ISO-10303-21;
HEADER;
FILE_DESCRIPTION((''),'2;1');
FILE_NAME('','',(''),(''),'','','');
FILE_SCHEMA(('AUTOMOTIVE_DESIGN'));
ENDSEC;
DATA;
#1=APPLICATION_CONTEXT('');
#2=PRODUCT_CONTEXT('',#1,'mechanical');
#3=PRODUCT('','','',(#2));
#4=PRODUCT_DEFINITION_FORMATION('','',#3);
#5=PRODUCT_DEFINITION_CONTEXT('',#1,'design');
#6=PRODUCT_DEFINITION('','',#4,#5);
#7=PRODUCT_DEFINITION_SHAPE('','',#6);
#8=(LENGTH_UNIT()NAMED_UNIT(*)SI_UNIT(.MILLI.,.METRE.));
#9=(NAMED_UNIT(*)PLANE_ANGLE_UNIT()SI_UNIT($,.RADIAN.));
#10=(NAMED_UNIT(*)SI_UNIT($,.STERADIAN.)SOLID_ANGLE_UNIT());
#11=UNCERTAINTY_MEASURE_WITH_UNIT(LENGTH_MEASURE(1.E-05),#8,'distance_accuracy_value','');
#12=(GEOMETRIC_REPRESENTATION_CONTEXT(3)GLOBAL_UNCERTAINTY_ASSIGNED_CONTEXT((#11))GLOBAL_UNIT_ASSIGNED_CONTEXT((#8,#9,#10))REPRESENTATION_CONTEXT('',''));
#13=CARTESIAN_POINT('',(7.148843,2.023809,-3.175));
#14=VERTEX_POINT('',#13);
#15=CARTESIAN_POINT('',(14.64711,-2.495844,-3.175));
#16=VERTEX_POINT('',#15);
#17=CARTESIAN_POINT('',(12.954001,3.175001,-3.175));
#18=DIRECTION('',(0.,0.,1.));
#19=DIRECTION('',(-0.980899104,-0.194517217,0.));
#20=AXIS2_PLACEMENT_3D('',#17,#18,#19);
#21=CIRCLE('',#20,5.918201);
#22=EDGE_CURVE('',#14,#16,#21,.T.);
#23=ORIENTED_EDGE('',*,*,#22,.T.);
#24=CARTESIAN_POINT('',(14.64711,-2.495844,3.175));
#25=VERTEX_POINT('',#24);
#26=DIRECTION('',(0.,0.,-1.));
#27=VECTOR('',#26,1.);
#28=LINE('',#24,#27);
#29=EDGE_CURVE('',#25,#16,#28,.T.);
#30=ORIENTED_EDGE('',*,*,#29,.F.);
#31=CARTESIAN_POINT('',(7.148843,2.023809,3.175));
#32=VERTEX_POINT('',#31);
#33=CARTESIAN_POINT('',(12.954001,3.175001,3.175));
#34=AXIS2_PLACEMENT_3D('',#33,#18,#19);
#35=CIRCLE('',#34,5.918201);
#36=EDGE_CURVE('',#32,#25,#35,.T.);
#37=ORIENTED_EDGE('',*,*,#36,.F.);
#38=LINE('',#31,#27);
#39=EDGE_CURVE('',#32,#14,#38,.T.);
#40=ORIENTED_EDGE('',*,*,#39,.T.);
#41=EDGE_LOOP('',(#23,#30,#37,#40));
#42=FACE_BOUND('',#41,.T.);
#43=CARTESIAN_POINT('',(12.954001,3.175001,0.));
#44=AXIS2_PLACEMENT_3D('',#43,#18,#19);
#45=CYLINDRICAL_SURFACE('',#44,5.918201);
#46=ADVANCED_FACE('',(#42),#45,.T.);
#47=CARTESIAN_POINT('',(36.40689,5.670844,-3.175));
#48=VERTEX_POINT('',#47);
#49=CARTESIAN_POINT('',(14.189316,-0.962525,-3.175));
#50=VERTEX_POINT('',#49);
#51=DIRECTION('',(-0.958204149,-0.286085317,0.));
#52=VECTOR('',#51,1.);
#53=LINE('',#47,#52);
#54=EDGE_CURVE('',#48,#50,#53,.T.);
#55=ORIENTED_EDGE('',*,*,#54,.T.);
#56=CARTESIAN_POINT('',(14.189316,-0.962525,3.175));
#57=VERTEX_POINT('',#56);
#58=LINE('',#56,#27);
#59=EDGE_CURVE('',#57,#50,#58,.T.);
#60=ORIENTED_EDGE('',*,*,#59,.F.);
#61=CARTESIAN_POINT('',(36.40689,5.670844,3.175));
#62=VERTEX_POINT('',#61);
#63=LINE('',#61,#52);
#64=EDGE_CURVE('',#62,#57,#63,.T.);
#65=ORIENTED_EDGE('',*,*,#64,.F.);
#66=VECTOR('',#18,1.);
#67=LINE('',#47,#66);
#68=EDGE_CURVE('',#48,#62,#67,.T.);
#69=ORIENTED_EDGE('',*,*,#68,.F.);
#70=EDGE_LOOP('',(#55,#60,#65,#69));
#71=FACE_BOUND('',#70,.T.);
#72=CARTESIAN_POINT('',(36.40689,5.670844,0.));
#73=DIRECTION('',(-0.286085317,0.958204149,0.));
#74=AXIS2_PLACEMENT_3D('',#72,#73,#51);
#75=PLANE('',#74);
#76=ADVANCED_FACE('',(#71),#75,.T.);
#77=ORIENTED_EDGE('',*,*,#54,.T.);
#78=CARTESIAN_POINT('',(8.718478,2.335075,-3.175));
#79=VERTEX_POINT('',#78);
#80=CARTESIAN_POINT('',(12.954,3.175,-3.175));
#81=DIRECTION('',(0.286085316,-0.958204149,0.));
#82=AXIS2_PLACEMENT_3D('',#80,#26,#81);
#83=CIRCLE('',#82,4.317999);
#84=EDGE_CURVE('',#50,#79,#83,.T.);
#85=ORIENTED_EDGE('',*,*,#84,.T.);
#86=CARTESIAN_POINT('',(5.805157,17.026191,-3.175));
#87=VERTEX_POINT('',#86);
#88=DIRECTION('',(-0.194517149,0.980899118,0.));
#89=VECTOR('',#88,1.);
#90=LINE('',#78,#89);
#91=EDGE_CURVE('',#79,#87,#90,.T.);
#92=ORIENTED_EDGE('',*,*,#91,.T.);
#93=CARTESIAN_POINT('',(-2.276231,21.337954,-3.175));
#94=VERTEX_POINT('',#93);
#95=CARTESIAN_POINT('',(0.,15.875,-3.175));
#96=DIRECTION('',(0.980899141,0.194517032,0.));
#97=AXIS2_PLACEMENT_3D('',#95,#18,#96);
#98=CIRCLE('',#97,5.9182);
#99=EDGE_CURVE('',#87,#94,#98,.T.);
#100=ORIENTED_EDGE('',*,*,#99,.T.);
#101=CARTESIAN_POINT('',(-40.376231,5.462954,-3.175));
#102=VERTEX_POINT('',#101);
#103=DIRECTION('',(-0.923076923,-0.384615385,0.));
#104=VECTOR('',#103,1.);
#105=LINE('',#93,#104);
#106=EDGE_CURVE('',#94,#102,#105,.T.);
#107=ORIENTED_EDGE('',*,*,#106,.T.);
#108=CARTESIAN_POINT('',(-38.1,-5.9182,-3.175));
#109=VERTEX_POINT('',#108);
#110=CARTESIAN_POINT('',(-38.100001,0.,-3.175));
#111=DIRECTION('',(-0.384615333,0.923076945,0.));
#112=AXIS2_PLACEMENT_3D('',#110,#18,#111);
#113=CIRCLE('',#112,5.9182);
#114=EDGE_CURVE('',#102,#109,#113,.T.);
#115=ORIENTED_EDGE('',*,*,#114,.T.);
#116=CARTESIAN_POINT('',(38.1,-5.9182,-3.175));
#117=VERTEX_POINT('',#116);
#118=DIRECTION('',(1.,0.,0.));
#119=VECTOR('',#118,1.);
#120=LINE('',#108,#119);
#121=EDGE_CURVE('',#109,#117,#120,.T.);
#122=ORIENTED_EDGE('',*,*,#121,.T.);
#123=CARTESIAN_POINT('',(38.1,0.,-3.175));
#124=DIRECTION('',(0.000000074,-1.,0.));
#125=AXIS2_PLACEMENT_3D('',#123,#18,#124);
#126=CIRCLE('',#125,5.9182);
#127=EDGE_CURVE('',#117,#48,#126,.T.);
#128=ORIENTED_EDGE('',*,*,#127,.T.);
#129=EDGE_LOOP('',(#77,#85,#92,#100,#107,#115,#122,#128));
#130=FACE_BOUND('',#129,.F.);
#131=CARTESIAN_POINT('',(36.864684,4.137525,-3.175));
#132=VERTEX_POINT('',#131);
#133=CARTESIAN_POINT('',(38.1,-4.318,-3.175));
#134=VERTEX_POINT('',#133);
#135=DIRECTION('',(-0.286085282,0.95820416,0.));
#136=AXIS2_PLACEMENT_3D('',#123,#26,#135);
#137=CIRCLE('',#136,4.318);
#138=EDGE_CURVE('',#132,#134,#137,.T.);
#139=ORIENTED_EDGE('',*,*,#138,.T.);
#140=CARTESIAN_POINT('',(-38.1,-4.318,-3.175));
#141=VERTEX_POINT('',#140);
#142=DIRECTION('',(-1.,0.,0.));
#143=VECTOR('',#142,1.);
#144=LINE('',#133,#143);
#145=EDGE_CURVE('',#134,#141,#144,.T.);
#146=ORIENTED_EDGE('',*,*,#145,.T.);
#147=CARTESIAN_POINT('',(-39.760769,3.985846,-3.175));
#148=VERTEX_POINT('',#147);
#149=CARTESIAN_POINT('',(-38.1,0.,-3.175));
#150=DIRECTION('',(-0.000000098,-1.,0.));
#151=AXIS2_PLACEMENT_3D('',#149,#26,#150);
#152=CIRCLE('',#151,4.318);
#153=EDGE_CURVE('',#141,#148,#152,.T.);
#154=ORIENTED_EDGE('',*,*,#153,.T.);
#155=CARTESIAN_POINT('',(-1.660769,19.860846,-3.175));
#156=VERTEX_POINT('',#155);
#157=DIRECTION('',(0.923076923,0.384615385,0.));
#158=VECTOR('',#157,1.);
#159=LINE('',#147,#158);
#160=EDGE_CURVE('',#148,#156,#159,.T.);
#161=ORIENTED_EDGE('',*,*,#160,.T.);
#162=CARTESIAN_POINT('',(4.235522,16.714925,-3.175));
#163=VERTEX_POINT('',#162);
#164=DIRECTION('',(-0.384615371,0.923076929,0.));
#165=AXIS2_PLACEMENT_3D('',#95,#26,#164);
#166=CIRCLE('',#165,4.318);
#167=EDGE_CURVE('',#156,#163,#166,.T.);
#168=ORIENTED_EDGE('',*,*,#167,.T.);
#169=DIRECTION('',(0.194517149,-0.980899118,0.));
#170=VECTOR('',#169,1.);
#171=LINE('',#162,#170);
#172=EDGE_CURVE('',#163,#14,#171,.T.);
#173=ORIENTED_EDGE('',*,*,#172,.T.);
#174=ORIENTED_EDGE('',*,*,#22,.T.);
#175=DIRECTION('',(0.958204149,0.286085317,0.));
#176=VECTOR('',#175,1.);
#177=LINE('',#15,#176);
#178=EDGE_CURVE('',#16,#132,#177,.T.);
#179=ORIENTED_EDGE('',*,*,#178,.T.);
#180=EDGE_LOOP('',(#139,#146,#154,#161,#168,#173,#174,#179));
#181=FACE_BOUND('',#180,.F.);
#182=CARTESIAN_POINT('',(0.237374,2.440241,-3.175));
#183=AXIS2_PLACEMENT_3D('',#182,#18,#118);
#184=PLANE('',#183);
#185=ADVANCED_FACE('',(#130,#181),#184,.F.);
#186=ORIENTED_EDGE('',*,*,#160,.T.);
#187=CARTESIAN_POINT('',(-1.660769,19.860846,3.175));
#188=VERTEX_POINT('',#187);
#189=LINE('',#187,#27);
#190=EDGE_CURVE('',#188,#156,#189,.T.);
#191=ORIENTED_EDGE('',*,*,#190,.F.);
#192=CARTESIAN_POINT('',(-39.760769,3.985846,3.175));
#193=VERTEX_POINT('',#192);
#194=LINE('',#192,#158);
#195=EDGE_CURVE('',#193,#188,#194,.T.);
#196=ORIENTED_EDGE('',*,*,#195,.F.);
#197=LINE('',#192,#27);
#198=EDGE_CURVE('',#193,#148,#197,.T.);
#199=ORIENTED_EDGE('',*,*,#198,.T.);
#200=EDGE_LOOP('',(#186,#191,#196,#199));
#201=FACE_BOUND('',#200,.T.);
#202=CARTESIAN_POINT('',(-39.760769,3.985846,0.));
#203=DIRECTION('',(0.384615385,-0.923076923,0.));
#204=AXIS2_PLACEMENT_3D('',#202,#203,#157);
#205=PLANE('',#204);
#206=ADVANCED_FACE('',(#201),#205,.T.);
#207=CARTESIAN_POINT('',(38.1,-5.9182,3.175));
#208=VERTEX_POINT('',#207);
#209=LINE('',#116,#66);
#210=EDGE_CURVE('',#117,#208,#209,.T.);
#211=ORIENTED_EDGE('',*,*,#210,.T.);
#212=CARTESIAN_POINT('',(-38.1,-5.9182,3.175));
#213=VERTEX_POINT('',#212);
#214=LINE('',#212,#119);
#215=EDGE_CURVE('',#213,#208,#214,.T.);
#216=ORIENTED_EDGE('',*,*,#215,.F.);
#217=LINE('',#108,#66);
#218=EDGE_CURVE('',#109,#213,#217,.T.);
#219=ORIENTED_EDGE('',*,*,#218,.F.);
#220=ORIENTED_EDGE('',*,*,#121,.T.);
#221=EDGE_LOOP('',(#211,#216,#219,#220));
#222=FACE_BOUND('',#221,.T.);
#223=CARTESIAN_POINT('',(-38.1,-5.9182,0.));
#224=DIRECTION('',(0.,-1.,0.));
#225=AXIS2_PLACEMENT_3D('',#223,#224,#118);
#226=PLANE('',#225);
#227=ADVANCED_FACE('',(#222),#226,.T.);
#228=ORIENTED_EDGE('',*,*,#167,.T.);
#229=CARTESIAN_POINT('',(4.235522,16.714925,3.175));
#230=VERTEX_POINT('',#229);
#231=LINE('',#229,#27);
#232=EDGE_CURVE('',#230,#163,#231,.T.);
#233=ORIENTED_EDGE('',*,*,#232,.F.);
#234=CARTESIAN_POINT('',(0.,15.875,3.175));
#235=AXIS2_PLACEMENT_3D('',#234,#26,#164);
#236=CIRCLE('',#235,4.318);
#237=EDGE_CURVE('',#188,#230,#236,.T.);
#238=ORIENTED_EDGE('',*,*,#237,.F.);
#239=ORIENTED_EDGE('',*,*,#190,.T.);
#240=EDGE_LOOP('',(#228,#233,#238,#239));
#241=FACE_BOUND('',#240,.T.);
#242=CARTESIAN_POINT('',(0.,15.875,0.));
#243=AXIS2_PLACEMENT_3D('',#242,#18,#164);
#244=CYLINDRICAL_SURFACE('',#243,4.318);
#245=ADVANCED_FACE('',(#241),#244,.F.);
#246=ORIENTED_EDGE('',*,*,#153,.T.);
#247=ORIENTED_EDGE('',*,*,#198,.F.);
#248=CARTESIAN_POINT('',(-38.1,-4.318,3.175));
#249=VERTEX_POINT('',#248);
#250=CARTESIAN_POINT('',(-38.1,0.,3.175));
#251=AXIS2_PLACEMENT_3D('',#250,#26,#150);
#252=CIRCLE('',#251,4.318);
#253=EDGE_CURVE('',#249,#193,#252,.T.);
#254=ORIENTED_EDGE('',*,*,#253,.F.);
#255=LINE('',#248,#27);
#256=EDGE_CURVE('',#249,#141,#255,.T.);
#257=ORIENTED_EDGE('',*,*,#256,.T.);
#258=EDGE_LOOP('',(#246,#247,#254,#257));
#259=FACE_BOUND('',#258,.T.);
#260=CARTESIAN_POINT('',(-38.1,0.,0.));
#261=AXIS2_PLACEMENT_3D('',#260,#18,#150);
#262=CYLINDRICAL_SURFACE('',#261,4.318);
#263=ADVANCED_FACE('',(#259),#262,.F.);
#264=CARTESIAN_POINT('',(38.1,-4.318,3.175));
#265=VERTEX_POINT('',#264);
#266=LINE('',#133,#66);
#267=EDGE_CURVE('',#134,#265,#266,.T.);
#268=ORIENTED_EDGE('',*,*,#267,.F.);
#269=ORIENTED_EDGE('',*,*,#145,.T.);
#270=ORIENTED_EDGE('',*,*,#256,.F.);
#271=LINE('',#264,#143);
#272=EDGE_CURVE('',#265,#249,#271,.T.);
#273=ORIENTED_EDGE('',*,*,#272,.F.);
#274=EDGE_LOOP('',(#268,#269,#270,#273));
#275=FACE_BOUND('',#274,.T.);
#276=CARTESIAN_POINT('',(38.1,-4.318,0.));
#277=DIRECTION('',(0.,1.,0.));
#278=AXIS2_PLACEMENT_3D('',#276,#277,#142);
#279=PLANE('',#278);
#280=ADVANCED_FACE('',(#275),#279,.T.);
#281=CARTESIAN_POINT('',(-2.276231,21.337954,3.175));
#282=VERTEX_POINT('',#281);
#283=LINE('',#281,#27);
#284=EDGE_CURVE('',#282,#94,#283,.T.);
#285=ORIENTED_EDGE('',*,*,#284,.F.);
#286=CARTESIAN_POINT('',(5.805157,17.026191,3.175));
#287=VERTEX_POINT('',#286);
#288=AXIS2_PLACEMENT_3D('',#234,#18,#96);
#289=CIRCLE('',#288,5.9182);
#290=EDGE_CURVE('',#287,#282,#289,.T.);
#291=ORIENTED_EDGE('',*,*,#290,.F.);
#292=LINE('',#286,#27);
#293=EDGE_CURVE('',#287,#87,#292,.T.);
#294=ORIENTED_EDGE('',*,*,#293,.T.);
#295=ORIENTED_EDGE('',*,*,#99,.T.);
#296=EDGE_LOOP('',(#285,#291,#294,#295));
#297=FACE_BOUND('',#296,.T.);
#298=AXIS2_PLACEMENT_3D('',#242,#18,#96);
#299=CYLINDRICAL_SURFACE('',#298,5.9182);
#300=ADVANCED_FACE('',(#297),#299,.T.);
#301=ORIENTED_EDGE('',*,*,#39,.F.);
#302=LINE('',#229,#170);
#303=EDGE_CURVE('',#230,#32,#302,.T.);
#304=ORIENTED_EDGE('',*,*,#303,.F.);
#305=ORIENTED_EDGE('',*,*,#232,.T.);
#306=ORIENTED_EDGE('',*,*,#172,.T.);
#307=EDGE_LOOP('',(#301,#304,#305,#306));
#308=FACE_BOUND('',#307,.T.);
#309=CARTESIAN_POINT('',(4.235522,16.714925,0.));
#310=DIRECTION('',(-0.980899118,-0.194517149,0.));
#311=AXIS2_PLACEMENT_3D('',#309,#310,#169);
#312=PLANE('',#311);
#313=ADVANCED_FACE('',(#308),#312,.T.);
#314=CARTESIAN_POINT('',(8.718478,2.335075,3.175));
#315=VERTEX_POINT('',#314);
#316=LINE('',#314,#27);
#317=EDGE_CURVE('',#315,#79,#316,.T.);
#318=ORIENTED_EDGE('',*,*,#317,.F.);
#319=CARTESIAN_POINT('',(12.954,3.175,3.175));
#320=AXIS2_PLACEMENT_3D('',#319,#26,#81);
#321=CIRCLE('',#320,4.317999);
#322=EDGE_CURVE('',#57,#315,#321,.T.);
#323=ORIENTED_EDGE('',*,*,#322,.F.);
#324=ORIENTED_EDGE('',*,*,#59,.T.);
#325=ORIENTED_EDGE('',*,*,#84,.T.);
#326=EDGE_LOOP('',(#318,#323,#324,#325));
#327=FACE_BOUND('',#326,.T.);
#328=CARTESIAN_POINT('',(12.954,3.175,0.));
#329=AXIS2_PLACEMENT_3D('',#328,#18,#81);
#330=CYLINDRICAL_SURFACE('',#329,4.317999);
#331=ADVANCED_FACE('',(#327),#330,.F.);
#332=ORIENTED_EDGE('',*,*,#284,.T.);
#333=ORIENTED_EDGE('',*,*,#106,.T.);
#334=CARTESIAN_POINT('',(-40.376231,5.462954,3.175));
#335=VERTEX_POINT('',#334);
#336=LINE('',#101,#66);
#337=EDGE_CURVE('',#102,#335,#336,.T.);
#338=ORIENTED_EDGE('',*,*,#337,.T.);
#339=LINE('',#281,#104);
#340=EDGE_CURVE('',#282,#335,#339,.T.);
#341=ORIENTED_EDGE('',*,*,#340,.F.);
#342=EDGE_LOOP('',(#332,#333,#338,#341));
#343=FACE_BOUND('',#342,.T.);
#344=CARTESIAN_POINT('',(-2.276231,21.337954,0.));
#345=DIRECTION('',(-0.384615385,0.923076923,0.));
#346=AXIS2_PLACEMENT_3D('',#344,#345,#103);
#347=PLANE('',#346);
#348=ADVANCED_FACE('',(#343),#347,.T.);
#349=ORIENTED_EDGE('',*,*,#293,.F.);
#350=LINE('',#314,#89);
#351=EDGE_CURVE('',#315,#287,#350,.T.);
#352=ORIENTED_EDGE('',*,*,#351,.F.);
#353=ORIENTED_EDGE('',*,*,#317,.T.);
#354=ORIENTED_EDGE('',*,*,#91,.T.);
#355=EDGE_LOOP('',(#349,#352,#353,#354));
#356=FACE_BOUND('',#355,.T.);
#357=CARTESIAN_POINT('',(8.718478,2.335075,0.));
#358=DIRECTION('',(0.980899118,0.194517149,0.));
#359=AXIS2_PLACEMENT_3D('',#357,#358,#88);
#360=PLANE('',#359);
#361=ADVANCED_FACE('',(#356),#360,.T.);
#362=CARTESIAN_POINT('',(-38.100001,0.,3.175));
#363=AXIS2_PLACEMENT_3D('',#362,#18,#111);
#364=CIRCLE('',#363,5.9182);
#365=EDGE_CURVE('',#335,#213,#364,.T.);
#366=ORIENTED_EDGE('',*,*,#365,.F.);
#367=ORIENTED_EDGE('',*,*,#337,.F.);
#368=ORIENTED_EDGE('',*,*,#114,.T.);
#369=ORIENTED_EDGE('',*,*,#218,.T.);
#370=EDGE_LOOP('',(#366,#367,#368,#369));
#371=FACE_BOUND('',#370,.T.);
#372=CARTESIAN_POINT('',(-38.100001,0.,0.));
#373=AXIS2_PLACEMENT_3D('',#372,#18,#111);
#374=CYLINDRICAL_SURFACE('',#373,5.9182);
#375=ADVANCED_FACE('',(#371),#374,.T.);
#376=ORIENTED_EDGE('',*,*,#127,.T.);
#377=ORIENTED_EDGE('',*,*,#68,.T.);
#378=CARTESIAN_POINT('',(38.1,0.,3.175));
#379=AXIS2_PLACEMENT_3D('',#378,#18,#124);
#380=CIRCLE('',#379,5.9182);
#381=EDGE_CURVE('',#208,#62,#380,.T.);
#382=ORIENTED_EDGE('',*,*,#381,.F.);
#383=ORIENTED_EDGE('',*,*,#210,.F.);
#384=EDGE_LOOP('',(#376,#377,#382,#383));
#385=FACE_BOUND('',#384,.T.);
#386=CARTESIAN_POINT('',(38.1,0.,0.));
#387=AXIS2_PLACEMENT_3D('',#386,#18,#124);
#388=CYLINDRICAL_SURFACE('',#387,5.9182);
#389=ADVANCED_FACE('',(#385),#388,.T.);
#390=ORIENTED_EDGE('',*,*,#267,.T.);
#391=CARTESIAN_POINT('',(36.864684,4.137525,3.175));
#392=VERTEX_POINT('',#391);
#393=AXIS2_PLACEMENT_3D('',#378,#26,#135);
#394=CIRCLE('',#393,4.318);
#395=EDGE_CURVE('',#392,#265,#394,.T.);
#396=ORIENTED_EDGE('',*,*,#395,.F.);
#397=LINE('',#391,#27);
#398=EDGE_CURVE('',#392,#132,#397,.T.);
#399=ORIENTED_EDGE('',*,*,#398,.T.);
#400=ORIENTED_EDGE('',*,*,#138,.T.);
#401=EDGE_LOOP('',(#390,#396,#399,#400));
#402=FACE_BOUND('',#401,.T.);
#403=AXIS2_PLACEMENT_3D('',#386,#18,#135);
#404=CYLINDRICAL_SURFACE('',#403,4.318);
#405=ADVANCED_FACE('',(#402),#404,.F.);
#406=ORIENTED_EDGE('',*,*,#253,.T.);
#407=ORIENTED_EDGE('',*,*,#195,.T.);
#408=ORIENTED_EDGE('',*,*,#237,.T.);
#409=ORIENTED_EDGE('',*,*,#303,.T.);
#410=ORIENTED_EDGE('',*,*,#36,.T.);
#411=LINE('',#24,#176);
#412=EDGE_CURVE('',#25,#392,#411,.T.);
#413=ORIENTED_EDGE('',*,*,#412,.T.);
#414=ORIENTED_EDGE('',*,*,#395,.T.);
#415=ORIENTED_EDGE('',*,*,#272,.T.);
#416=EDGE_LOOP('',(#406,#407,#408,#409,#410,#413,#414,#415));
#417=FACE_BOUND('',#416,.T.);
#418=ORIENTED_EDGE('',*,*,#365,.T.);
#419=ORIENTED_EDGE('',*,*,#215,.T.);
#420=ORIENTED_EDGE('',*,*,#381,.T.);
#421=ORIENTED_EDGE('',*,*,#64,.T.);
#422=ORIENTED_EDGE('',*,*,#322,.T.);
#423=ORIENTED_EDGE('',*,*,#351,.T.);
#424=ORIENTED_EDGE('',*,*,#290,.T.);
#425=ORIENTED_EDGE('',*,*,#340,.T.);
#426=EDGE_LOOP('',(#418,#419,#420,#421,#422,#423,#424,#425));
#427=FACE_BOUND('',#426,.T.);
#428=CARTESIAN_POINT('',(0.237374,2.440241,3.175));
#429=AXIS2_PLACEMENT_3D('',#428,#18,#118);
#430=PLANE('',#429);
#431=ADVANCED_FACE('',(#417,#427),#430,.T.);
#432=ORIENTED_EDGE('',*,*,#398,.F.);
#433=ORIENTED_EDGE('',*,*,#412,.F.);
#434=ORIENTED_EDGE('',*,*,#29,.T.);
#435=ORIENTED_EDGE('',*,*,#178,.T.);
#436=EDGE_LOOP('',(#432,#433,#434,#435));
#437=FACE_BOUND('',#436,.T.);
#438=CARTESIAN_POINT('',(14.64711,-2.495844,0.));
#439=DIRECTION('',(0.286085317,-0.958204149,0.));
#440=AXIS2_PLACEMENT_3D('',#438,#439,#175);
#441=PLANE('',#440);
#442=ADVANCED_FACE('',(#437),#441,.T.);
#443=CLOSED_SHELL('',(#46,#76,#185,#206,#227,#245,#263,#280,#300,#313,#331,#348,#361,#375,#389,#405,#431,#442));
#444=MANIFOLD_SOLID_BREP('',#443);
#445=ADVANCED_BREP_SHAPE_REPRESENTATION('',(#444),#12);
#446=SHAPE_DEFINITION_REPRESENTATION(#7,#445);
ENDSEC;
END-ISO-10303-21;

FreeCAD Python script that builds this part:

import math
import FreeCAD as App
import Part
import Sketcher
from FreeCAD import Vector
Q = App.Units.Quantity

doc = App.newDocument("Part")
params = doc.addObject("Spreadsheet::Sheet", "Params")
for row, (alias, value) in enumerate([
    ("sketch1_width", "3 in"),
    ("sketch1_radius", "0.17 in"),
    ("sketch1_radius2", "0.233 in"),
    ("sketch1_length", "1.625 in"),
    ("pad1_length", "0.25 in"),
], start=1):
    params.set(f"A{row}", alias)
    params.set(f"B{row}", "=" + value)
    params.setAlias(f"B{row}", alias)

body = doc.addObject("PartDesign::Body", "Body")

# Sketch on XY plane
sketch1 = doc.addObject("Sketcher::SketchObject", "Sketch")
body.addObject(sketch1)
sketch1.AttachmentSupport = (doc.XY_Plane, [""])
sketch1.MapMode = "FlatFace"
sketch1.addGeometry([
    Part.LineSegment(Vector(-2.3, 21.3, 0), Vector(-40.4, 5.5, 0)),  # 0
    Part.ArcOfCircle(Part.Circle(Vector(-38.1, 0, 0), Vector(0, 0, 1), 5.9), math.radians(113), math.radians(270)),  # 1
    Part.LineSegment(Vector(-38.1, -5.9, 0), Vector(38.1, -5.9, 0)),  # 2
    Part.ArcOfCircle(Part.Circle(Vector(38.1, 0, 0), Vector(0, 0, 1), 5.9), math.radians(-90), math.radians(107)),  # 3
    Part.LineSegment(Vector(36.4, 5.7, 0), Vector(14.2, -1, 0)),  # 4
    Part.ArcOfCircle(Part.Circle(Vector(13, 3.2, 0), Vector(0, 0, 1), 4.3), math.radians(-169), math.radians(-73)),  # 5
    Part.LineSegment(Vector(8.7, 2.3, 0), Vector(5.8, 17, 0)),  # 6
    Part.ArcOfCircle(Part.Circle(Vector(0, 15.9, 0), Vector(0, 0, 1), 5.9), math.radians(11), math.radians(113)),  # 7
    Part.ArcOfCircle(Part.Circle(Vector(38.1, 0, 0), Vector(0, 0, 1), 4.3), math.radians(-90), math.radians(107)),  # 8
    Part.LineSegment(Vector(38.1, -4.3, 0), Vector(-38.1, -4.3, 0)),  # 9
    Part.ArcOfCircle(Part.Circle(Vector(-38.1, 0, 0), Vector(0, 0, 1), 4.3), math.radians(113), math.radians(270)),  # 10
    Part.LineSegment(Vector(-39.8, 4, 0), Vector(-1.7, 19.9, 0)),  # 11
    Part.ArcOfCircle(Part.Circle(Vector(0, 15.9, 0), Vector(0, 0, 1), 4.3), math.radians(11), math.radians(113)),  # 12
    Part.LineSegment(Vector(4.2, 16.7, 0), Vector(7.1, 2, 0)),  # 13
    Part.ArcOfCircle(Part.Circle(Vector(13, 3.2, 0), Vector(0, 0, 1), 5.9), math.radians(-169), math.radians(-73)),  # 14
    Part.LineSegment(Vector(14.6, -2.5, 0), Vector(36.9, 4.1, 0)),  # 15
], False)
sketch1.addConstraint([
    Sketcher.Constraint("Tangent", 0, 2, 1, 1),
    Sketcher.Constraint("Tangent", 1, 2, 2, 1),
    Sketcher.Constraint("Tangent", 2, 2, 3, 1),
    Sketcher.Constraint("Tangent", 3, 2, 4, 1),
    Sketcher.Constraint("Tangent", 4, 2, 5, 2),
    Sketcher.Constraint("Tangent", 5, 1, 6, 1),
    Sketcher.Constraint("Tangent", 6, 2, 7, 1),
    Sketcher.Constraint("Tangent", 7, 2, 0, 1),
    Sketcher.Constraint("Tangent", 8, 1, 9, 1),
    Sketcher.Constraint("Tangent", 9, 2, 10, 2),
    Sketcher.Constraint("Tangent", 10, 1, 11, 1),
    Sketcher.Constraint("Tangent", 11, 2, 12, 2),
    Sketcher.Constraint("Tangent", 12, 1, 13, 1),
    Sketcher.Constraint("Tangent", 13, 2, 14, 1),
    Sketcher.Constraint("Tangent", 14, 2, 15, 1),
    Sketcher.Constraint("Tangent", 15, 2, 8, 2),
    Sketcher.Constraint("Horizontal", 2),
    Sketcher.Constraint("Horizontal", 9),
    Sketcher.Constraint("Coincident", 8, 3, 3, 3),
    Sketcher.Constraint("Coincident", 10, 3, 1, 3),
    Sketcher.Constraint("Coincident", 12, 3, 7, 3),
    Sketcher.Constraint("Coincident", 14, 3, 5, 3),
    Sketcher.Constraint("Equal", 1, 3),
    Sketcher.Constraint("Equal", 3, 7),
    Sketcher.Constraint("Equal", 5, 8),
    Sketcher.Constraint("Equal", 10, 12),
    Sketcher.Constraint("Equal", 7, 14),
    Sketcher.Constraint("Symmetric", 1, 3, 3, 3, -1, 1),
    Sketcher.Constraint("PointOnObject", 7, 3, -2),
    Sketcher.Constraint("DistanceX", 2, 1, 2, 2, Q("3 in")),
    Sketcher.Constraint("Radius", 5, Q("0.17 in")),
    Sketcher.Constraint("Radius", 1, Q("0.233 in")),
    Sketcher.Constraint("DistanceY", 5, 3, 7, 3, Q("0.5 in")),
    Sketcher.Constraint("DistanceX", -1, 1, 5, 3, Q("0.51 in")),
    Sketcher.Constraint("Distance", 0, Q("1.625 in")),
])
sketch1.setExpression("Constraints[29]", "Params.sketch1_width")
sketch1.setExpression("Constraints[30]", "Params.sketch1_radius")
sketch1.setExpression("Constraints[31]", "Params.sketch1_radius2")
sketch1.setExpression("Constraints[34]", "Params.sketch1_length")
pad1 = doc.addObject("PartDesign::Pad", "Pad")
body.addObject(pad1)
pad1.Profile = sketch1
pad1.setExpression("Length", "Params.pad1_length")
pad1.Midplane = True

doc.recompute()
